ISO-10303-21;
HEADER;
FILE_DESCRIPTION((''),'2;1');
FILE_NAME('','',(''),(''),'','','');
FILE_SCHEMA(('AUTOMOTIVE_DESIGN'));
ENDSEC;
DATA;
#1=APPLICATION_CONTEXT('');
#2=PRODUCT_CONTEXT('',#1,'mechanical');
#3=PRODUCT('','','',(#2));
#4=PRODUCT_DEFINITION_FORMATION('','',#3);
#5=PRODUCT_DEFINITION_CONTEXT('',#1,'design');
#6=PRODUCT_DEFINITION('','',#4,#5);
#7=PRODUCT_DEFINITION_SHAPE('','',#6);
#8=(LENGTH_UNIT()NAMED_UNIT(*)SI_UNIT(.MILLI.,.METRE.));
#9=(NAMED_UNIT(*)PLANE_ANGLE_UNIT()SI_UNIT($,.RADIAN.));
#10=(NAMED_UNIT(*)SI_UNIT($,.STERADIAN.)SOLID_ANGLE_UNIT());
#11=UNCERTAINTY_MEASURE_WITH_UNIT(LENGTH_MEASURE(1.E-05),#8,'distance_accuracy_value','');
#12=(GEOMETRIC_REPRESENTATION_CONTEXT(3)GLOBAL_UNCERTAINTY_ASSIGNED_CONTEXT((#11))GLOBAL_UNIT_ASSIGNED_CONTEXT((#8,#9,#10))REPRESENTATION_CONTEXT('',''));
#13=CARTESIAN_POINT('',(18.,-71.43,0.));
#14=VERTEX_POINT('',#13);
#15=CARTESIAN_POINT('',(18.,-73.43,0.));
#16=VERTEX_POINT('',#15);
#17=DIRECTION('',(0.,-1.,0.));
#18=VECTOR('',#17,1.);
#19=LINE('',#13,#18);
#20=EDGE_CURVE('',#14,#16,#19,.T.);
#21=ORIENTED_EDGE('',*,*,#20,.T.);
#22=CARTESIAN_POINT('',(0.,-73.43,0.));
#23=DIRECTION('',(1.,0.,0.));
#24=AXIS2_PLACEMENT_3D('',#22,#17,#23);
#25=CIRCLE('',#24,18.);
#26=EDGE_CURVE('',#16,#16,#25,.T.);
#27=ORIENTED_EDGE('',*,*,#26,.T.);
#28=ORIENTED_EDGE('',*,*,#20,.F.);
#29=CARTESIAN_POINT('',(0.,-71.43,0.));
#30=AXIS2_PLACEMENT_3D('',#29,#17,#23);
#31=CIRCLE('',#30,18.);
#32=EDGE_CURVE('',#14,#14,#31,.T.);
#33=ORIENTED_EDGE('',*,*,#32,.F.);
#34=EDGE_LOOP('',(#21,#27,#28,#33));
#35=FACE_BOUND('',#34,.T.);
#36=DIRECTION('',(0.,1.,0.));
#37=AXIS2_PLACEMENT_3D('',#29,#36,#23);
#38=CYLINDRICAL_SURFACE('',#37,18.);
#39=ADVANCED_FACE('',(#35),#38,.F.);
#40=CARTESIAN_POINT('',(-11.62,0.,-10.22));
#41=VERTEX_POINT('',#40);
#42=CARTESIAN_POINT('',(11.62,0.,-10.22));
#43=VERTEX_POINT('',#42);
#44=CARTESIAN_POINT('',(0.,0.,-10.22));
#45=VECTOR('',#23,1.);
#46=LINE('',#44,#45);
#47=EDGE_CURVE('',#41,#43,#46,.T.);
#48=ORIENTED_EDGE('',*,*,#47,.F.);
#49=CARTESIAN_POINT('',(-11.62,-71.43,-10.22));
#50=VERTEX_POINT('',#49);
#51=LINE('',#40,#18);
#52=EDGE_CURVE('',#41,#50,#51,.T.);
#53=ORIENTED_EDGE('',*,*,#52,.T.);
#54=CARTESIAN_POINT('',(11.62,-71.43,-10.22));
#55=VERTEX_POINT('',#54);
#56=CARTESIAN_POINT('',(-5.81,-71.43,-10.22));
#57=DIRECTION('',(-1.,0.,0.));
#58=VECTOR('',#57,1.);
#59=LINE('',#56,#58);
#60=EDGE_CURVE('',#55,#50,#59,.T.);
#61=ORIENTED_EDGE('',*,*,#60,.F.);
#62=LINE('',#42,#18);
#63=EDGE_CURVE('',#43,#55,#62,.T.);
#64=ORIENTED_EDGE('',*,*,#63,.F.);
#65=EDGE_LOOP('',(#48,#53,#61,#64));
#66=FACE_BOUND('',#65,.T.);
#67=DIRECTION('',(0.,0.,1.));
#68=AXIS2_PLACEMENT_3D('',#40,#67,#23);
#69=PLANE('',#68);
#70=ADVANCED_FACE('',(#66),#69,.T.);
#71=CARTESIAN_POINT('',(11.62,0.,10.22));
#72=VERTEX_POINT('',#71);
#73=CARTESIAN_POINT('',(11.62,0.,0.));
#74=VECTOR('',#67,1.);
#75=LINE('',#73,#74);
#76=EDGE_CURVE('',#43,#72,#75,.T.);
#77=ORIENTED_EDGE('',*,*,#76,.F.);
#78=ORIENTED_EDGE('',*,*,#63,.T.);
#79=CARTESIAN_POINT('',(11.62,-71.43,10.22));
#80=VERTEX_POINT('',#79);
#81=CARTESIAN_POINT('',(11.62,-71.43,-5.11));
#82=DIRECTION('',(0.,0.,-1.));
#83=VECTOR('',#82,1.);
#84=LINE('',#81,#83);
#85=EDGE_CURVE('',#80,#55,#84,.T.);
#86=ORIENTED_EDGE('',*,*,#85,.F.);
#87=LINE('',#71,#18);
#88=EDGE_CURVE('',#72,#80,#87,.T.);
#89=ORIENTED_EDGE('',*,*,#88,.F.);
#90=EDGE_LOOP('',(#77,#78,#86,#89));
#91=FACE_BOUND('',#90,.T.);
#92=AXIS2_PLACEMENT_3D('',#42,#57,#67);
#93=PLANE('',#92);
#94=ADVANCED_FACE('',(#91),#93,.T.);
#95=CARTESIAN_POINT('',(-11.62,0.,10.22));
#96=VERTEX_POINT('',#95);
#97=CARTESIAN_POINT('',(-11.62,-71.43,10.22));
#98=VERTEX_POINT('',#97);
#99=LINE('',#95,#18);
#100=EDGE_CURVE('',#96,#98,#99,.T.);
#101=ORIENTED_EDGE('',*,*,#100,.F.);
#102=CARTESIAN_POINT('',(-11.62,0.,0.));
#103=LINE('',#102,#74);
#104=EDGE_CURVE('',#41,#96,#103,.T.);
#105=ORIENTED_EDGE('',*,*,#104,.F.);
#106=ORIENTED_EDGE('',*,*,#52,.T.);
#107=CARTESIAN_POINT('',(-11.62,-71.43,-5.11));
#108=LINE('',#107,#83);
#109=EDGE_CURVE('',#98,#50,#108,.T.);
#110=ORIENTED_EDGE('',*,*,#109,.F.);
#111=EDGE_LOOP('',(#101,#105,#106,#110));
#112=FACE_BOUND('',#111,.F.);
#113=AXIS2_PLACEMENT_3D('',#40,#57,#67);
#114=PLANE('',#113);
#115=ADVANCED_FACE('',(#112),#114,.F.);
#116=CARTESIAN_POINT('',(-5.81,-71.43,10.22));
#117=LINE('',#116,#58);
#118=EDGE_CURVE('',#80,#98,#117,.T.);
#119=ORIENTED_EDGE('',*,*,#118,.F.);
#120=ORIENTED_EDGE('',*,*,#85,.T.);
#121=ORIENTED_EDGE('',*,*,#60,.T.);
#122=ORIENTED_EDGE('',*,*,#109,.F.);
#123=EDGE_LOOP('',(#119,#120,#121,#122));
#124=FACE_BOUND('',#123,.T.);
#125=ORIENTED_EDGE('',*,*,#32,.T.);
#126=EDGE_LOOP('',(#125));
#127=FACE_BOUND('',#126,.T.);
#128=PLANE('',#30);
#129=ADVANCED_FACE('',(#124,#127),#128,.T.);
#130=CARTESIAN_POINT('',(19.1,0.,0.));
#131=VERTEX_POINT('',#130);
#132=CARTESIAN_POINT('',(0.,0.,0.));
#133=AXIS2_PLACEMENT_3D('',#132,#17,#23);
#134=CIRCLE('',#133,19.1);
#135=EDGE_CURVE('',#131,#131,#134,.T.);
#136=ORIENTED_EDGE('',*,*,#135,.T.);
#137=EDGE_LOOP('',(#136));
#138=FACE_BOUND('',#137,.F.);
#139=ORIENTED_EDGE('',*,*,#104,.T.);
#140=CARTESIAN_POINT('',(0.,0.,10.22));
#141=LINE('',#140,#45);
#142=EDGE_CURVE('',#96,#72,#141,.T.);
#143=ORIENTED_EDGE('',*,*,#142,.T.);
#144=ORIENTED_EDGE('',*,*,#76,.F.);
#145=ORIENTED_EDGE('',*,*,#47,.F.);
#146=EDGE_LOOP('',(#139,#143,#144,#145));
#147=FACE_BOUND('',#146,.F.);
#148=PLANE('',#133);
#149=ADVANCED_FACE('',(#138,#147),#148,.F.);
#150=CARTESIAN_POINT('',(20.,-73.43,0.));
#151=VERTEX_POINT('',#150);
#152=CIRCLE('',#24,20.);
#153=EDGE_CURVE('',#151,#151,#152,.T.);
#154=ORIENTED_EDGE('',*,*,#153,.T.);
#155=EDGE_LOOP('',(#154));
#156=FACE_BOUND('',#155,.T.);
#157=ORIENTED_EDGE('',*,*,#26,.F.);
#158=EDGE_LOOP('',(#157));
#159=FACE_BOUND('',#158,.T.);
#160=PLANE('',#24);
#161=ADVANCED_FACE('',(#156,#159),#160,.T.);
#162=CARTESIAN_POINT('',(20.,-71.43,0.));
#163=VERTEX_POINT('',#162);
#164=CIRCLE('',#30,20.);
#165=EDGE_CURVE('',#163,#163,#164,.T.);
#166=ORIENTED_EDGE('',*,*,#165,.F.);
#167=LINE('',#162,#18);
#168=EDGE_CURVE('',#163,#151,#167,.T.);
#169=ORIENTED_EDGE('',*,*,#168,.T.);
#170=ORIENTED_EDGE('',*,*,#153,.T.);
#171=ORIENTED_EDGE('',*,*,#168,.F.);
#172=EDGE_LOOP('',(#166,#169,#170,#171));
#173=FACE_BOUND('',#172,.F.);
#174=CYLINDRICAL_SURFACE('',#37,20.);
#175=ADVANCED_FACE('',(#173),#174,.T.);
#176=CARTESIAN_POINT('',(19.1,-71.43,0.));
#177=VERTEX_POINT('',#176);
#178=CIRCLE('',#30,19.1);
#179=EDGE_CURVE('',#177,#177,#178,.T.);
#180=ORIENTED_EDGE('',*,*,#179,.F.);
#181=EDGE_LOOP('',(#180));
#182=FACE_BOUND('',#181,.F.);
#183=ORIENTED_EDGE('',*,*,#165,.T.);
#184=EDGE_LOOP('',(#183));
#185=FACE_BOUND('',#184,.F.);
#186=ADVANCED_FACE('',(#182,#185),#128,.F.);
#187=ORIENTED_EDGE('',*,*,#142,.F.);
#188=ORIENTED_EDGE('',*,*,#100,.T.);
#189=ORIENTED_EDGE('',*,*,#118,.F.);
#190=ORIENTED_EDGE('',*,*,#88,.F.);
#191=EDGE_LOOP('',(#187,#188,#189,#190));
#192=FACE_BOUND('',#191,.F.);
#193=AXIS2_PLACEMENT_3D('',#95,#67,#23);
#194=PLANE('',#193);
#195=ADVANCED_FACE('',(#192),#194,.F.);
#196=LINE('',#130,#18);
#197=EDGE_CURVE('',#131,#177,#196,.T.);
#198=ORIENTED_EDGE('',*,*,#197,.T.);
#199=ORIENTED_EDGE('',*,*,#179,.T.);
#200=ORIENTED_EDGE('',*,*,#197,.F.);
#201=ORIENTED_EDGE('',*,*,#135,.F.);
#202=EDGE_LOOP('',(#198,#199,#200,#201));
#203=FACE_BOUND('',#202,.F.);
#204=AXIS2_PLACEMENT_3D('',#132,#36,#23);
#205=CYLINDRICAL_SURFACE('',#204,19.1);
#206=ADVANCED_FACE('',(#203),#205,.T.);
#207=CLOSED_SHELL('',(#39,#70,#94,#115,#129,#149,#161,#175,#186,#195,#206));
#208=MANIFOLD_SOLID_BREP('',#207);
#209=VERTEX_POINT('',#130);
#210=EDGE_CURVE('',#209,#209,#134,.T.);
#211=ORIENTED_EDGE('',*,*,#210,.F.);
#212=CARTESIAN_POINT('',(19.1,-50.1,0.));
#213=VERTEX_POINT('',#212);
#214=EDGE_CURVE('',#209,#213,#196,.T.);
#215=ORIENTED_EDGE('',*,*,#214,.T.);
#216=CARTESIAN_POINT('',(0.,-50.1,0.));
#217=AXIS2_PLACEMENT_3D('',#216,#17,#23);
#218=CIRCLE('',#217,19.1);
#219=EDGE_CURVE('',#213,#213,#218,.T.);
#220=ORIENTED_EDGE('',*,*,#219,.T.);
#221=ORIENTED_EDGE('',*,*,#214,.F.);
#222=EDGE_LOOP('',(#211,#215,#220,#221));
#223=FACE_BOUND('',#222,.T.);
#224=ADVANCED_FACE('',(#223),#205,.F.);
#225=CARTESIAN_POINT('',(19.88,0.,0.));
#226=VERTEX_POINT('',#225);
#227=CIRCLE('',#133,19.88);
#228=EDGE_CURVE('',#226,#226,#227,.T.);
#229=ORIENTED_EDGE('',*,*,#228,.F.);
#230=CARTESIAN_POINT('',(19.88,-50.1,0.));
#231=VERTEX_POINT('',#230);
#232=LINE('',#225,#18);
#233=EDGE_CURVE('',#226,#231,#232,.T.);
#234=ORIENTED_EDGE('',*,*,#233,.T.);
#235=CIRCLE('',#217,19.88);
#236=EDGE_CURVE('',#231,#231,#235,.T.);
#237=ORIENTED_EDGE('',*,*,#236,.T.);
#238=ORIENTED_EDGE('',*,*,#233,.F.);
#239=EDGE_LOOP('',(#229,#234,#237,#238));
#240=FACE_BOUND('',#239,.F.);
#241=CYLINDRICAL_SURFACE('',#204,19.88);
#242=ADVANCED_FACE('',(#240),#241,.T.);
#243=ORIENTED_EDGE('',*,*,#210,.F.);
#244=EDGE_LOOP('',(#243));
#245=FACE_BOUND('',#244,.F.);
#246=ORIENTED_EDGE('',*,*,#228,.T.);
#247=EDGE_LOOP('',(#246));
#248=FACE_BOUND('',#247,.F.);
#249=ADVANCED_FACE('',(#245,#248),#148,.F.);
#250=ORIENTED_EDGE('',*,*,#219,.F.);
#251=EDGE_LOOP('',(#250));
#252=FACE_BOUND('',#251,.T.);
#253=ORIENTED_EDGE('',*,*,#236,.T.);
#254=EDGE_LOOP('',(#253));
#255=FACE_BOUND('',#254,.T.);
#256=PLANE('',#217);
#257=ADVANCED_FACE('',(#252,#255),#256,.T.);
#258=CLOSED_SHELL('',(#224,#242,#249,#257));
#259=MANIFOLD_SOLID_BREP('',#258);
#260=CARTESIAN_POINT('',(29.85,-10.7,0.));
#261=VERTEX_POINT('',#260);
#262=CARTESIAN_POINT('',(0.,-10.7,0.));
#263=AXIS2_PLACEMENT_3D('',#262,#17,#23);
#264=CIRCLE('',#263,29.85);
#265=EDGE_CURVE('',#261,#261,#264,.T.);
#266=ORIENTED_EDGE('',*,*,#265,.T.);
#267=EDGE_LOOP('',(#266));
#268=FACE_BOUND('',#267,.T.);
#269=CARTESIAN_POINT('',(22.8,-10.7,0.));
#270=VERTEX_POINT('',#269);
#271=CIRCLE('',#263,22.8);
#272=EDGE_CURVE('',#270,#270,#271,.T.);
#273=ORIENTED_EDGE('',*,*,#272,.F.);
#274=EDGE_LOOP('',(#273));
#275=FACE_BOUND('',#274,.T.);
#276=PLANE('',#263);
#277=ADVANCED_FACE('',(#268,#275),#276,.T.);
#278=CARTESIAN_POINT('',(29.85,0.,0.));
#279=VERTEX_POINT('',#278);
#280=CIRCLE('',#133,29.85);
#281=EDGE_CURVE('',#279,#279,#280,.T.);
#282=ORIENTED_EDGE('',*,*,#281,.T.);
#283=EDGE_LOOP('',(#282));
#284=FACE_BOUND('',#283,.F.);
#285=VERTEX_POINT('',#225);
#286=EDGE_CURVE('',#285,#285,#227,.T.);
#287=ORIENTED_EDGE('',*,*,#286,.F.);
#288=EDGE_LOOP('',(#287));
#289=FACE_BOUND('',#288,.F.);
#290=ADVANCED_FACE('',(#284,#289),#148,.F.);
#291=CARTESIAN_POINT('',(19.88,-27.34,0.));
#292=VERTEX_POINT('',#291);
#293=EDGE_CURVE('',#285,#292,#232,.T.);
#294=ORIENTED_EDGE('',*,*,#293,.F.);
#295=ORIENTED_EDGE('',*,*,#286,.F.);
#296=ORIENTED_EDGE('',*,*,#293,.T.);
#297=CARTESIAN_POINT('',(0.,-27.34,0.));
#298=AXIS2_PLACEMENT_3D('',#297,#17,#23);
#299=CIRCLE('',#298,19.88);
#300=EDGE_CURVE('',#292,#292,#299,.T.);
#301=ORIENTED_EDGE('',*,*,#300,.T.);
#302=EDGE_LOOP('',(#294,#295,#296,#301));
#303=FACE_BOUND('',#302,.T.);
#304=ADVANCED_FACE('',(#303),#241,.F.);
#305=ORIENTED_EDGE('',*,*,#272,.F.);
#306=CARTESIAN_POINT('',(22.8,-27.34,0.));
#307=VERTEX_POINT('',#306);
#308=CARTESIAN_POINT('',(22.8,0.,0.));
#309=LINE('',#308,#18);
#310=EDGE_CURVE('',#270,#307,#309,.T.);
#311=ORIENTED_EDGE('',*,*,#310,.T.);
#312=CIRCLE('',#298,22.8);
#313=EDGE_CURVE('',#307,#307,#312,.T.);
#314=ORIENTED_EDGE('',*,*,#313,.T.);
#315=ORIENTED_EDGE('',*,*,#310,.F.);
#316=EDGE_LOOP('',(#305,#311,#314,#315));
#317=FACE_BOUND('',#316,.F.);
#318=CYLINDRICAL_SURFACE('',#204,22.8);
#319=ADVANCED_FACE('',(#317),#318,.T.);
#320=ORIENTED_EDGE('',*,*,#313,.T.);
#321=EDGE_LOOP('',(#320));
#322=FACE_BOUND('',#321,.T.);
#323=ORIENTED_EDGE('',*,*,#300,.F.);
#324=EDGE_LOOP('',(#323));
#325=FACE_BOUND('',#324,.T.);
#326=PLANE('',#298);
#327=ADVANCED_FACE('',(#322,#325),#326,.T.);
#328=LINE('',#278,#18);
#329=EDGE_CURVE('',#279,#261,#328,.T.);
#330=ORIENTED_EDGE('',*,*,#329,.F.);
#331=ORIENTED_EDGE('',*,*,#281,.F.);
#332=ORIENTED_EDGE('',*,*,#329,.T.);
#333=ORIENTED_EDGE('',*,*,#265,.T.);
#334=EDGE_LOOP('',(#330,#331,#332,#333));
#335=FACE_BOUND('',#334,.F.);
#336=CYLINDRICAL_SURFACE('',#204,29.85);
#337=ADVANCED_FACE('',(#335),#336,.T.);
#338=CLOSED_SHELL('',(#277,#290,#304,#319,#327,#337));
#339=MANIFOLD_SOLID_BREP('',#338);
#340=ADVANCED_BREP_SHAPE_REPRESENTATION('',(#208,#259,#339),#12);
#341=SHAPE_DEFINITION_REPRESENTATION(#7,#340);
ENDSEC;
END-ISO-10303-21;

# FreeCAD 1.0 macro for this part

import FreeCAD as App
import Part
import Sketcher


def add_polygon(sketch, points):
    """Adds a closed chain of lines whose ends are joined by coincident constraints."""
    first, n = sketch.GeometryCount, len(points)
    for a, b in zip(points, points[1:] + points[:1]):
        sketch.addGeometry(Part.LineSegment(App.Vector(*a, 0), App.Vector(*b, 0)), False)
    for i in range(n):
        sketch.addConstraint(Sketcher.Constraint("Coincident", first + i, 2, first + (i + 1) % n, 1))

doc = App.newDocument("Part")
body = doc.addObject("PartDesign::Body", "Body")

# Sketch on XZ plane
sketch1 = body.newObject("Sketcher::SketchObject", "Sketch")
sketch1.AttachmentSupport = (doc.getObject("XZ_Plane"), [""])
sketch1.MapMode = "FlatFace"
sketch1.addGeometry(Part.Circle(App.Vector(0, 0, 0), App.Vector(0, 0, 1), 30), False)
sketch1.addGeometry(Part.Circle(App.Vector(0, 0, 0), App.Vector(0, 0, 1), 23), False)
sketch1.addConstraint(Sketcher.Constraint("Coincident", 0, 3, -1, 1))
sketch1.addConstraint(Sketcher.Constraint("Coincident", 1, 3, -1, 1))
sketch1.addConstraint(Sketcher.Constraint("Diameter", 0, 59.7))
sketch1.addConstraint(Sketcher.Constraint("Diameter", 1, 45.6))
pad1 = body.newObject("PartDesign::Pad", "Pad")
pad1.Profile = sketch1
pad1.Length = 10.7

# Sketch on XZ plane
sketch2 = body.newObject("Sketcher::SketchObject", "Sketch001")
sketch2.AttachmentSupport = (doc.getObject("XZ_Plane"), [""])
sketch2.MapMode = "FlatFace"
sketch2.addGeometry(Part.Circle(App.Vector(0, 0, 0), App.Vector(0, 0, 1), 23), False)
sketch2.addGeometry(Part.Circle(App.Vector(0, 0, 0), App.Vector(0, 0, 1), 20), False)
sketch2.addConstraint(Sketcher.Constraint("Coincident", 0, 3, -1, 1))
sketch2.addConstraint(Sketcher.Constraint("Coincident", 1, 3, -1, 1))
sketch2.addConstraint(Sketcher.Constraint("Diameter", 0, 45.6))
sketch2.addConstraint(Sketcher.Constraint("Diameter", 1, 39.76))
pad2 = body.newObject("PartDesign::Pad", "Pad001")
pad2.Profile = sketch2
pad2.Length = 27.34
body2 = doc.addObject("PartDesign::Body", "Body001")

# Sketch on XZ plane
sketch3 = body2.newObject("Sketcher::SketchObject", "Sketch002")
sketch3.AttachmentSupport = (doc.getObject("XZ_Plane001"), [""])
sketch3.MapMode = "FlatFace"
sketch3.addGeometry(Part.Circle(App.Vector(0, 0, 0), App.Vector(0, 0, 1), 20), False)
sketch3.addGeometry(Part.Circle(App.Vector(0, 0, 0), App.Vector(0, 0, 1), 19), False)
sketch3.addConstraint(Sketcher.Constraint("Coincident", 0, 3, -1, 1))
sketch3.addConstraint(Sketcher.Constraint("Coincident", 1, 3, -1, 1))
sketch3.addConstraint(Sketcher.Constraint("Diameter", 1, 38.2))
sketch3.addConstraint(Sketcher.Constraint("Diameter", 0, 39.76))
pad3 = body2.newObject("PartDesign::Pad", "Pad002")
pad3.Profile = sketch3
pad3.Length = 50.1
body3 = doc.addObject("PartDesign::Body", "Body002")

# Sketch on XZ plane
sketch4 = body3.newObject("Sketcher::SketchObject", "Sketch003")
sketch4.AttachmentSupport = (doc.getObject("XZ_Plane002"), [""])
sketch4.MapMode = "FlatFace"
sketch4.addGeometry(Part.Circle(App.Vector(0, 0, 0), App.Vector(0, 0, 1), 19), False)
sketch4.addConstraint(Sketcher.Constraint("Coincident", 0, 3, -1, 1))
sketch4.addConstraint(Sketcher.Constraint("Diameter", 0, 38.2))
pad4 = body3.newObject("PartDesign::Pad", "Pad003")
pad4.Profile = sketch4
pad4.Length = 71.43

# Sketch on XZ plane
sketch5 = body3.newObject("Sketcher::SketchObject", "Sketch004")
sketch5.AttachmentSupport = (doc.getObject("XZ_Plane002"), [""])
sketch5.MapMode = "FlatFace"
add_polygon(sketch5, [(-12, 10), (-12, -10), (12, -10), (12, 10)])  # lines 0-3
sketch5.addConstraint(Sketcher.Constraint("Vertical", 0))
sketch5.addConstraint(Sketcher.Constraint("Horizontal", 1))
sketch5.addConstraint(Sketcher.Constraint("Vertical", 2))
sketch5.addConstraint(Sketcher.Constraint("Horizontal", 3))
sketch5.addConstraint(Sketcher.Constraint("Symmetric", 0, 2, 2, 2, -1, 1))
sketch5.addConstraint(Sketcher.Constraint("DistanceX", 1, 1, 1, 2, 23.24))
sketch5.addConstraint(Sketcher.Constraint("DistanceY", 0, 2, 0, 1, 20.44))
pocket1 = body3.newObject("PartDesign::Pocket", "Pocket")
pocket1.Profile = sketch5
pocket1.Length = 72
pocket1.Reversed = True

# Sketch on XZ plane
sketch6 = body3.newObject("Sketcher::SketchObject", "Sketch005")
sketch6.AttachmentSupport = (doc.getObject("XZ_Plane002"), [""])
sketch6.MapMode = "FlatFace"
sketch6.AttachmentOffset = App.Placement(App.Vector(0, 0, 71.43), App.Rotation())
sketch6.addGeometry(Part.Circle(App.Vector(0, 0, 0), App.Vector(0, 0, 1), 20), False)
sketch6.addGeometry(Part.Circle(App.Vector(0, 0, 0), App.Vector(0, 0, 1), 18), False)
sketch6.addConstraint(Sketcher.Constraint("Coincident", 0, 3, -1, 1))
sketch6.addConstraint(Sketcher.Constraint("Coincident", 1, 3, -1, 1))
sketch6.addConstraint(Sketcher.Constraint("Diameter", 0, 40.0))
sketch6.addConstraint(Sketcher.Constraint("Diameter", 1, 36.0))
pad5 = body3.newObject("PartDesign::Pad", "Pad004")
pad5.Profile = sketch6
pad5.Length = 2

doc.recompute()
